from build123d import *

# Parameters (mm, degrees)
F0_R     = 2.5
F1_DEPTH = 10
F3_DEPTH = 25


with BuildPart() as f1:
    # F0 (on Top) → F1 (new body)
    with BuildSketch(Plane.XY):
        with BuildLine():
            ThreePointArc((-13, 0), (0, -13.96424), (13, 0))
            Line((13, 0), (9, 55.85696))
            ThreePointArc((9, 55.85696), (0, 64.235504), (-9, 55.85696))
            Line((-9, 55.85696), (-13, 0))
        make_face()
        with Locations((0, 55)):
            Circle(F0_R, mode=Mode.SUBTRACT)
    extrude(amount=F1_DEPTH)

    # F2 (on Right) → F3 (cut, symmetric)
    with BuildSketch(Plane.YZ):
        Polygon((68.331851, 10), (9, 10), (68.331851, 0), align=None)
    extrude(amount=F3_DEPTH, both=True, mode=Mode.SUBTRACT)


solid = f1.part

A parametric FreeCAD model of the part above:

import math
import FreeCAD as App
import Part
import Sketcher
Q = App.Units.Quantity

doc = App.newDocument("Part")
body = doc.addObject("PartDesign::Body", "Body")

sketch1 = body.newObject("Sketcher::SketchObject", "Sketch")
sketch1.AttachmentSupport = (doc.getObject("XY_Plane"), [""])
sketch1.MapMode = "FlatFace"
sketch1.addGeometry([
    Part.ArcOfCircle(Part.Circle(App.Vector(0, -0.9, 0), App.Vector(0, 0, 1), 13), math.radians(176), math.radians(364)),
    Part.LineSegment(App.Vector(13, 0, 0), App.Vector(9, 55.9, 0)),
    Part.ArcOfCircle(Part.Circle(App.Vector(0, 55.2, 0), App.Vector(0, 0, 1), 9), math.radians(4), math.radians(176)),
    Part.LineSegment(App.Vector(-9, 55.9, 0), App.Vector(-13, 0, 0)),
    Part.Circle(App.Vector(0, 55, 0), App.Vector(0, 0, 1), 2.5),
], False)
sketch1.addConstraint([
    Sketcher.Constraint("Tangent", 0, 2, 1, 1),
    Sketcher.Constraint("Tangent", 1, 2, 2, 1),
    Sketcher.Constraint("Tangent", 2, 2, 3, 1),
    Sketcher.Constraint("Tangent", 3, 2, 0, 1),
    Sketcher.Constraint("Symmetric", 0, 2, 3, 2, -1, 1),
    Sketcher.Constraint("PointOnObject", 0, 3, -2),
    Sketcher.Constraint("PointOnObject", 4, 3, -2),
    Sketcher.Constraint("Diameter", 4, Q("5 mm")),
    Sketcher.Constraint("Distance", 1, Q("56 mm")),
    Sketcher.Constraint("DistanceY", -1, 1, 4, 3, Q("55 mm")),
    Sketcher.Constraint("DistanceX", -1, 1, 0, 2, Q("13 mm")),
    Sketcher.Constraint("DistanceX", -1, 1, 1, 2, Q("9 mm")),
])
pad1 = body.newObject("PartDesign::Pad", "Pad")
pad1.Profile = sketch1
pad1.Length = 10

sketch2 = body.newObject("Sketcher::SketchObject", "Sketch001")
sketch2.AttachmentSupport = (doc.getObject("YZ_Plane"), [""])
sketch2.MapMode = "FlatFace"
sketch2.addGeometry([
    Part.LineSegment(App.Vector(68, 10, 0), App.Vector(9, 10, 0)),
    Part.LineSegment(App.Vector(9, 10, 0), App.Vector(68, 0, 0)),
    Part.LineSegment(App.Vector(68, 0, 0), App.Vector(68, 10, 0)),
], False)
sketch2.addConstraint([
    Sketcher.Constraint("Coincident", 0, 2, 1, 1),
    Sketcher.Constraint("Coincident", 1, 2, 2, 1),
    Sketcher.Constraint("Coincident", 2, 2, 0, 1),
    Sketcher.Constraint("Horizontal", 0),
    Sketcher.Constraint("Vertical", 2),
    Sketcher.Constraint("PointOnObject", 1, 2, -1),
    Sketcher.Constraint("DistanceY", 2, 1, 2, 2, Q("10 mm")),
    Sketcher.Constraint("DistanceX", -1, 1, 0, 2, Q("9 mm")),
    Sketcher.Constraint("DistanceX", 0, 2, 0, 1, Q("59.331851 mm")),
])
pocket1 = body.newObject("PartDesign::Pocket", "Pocket")
pocket1.Profile = sketch2
pocket1.Length = 50
pocket1.Midplane = True

doc.recompute()
